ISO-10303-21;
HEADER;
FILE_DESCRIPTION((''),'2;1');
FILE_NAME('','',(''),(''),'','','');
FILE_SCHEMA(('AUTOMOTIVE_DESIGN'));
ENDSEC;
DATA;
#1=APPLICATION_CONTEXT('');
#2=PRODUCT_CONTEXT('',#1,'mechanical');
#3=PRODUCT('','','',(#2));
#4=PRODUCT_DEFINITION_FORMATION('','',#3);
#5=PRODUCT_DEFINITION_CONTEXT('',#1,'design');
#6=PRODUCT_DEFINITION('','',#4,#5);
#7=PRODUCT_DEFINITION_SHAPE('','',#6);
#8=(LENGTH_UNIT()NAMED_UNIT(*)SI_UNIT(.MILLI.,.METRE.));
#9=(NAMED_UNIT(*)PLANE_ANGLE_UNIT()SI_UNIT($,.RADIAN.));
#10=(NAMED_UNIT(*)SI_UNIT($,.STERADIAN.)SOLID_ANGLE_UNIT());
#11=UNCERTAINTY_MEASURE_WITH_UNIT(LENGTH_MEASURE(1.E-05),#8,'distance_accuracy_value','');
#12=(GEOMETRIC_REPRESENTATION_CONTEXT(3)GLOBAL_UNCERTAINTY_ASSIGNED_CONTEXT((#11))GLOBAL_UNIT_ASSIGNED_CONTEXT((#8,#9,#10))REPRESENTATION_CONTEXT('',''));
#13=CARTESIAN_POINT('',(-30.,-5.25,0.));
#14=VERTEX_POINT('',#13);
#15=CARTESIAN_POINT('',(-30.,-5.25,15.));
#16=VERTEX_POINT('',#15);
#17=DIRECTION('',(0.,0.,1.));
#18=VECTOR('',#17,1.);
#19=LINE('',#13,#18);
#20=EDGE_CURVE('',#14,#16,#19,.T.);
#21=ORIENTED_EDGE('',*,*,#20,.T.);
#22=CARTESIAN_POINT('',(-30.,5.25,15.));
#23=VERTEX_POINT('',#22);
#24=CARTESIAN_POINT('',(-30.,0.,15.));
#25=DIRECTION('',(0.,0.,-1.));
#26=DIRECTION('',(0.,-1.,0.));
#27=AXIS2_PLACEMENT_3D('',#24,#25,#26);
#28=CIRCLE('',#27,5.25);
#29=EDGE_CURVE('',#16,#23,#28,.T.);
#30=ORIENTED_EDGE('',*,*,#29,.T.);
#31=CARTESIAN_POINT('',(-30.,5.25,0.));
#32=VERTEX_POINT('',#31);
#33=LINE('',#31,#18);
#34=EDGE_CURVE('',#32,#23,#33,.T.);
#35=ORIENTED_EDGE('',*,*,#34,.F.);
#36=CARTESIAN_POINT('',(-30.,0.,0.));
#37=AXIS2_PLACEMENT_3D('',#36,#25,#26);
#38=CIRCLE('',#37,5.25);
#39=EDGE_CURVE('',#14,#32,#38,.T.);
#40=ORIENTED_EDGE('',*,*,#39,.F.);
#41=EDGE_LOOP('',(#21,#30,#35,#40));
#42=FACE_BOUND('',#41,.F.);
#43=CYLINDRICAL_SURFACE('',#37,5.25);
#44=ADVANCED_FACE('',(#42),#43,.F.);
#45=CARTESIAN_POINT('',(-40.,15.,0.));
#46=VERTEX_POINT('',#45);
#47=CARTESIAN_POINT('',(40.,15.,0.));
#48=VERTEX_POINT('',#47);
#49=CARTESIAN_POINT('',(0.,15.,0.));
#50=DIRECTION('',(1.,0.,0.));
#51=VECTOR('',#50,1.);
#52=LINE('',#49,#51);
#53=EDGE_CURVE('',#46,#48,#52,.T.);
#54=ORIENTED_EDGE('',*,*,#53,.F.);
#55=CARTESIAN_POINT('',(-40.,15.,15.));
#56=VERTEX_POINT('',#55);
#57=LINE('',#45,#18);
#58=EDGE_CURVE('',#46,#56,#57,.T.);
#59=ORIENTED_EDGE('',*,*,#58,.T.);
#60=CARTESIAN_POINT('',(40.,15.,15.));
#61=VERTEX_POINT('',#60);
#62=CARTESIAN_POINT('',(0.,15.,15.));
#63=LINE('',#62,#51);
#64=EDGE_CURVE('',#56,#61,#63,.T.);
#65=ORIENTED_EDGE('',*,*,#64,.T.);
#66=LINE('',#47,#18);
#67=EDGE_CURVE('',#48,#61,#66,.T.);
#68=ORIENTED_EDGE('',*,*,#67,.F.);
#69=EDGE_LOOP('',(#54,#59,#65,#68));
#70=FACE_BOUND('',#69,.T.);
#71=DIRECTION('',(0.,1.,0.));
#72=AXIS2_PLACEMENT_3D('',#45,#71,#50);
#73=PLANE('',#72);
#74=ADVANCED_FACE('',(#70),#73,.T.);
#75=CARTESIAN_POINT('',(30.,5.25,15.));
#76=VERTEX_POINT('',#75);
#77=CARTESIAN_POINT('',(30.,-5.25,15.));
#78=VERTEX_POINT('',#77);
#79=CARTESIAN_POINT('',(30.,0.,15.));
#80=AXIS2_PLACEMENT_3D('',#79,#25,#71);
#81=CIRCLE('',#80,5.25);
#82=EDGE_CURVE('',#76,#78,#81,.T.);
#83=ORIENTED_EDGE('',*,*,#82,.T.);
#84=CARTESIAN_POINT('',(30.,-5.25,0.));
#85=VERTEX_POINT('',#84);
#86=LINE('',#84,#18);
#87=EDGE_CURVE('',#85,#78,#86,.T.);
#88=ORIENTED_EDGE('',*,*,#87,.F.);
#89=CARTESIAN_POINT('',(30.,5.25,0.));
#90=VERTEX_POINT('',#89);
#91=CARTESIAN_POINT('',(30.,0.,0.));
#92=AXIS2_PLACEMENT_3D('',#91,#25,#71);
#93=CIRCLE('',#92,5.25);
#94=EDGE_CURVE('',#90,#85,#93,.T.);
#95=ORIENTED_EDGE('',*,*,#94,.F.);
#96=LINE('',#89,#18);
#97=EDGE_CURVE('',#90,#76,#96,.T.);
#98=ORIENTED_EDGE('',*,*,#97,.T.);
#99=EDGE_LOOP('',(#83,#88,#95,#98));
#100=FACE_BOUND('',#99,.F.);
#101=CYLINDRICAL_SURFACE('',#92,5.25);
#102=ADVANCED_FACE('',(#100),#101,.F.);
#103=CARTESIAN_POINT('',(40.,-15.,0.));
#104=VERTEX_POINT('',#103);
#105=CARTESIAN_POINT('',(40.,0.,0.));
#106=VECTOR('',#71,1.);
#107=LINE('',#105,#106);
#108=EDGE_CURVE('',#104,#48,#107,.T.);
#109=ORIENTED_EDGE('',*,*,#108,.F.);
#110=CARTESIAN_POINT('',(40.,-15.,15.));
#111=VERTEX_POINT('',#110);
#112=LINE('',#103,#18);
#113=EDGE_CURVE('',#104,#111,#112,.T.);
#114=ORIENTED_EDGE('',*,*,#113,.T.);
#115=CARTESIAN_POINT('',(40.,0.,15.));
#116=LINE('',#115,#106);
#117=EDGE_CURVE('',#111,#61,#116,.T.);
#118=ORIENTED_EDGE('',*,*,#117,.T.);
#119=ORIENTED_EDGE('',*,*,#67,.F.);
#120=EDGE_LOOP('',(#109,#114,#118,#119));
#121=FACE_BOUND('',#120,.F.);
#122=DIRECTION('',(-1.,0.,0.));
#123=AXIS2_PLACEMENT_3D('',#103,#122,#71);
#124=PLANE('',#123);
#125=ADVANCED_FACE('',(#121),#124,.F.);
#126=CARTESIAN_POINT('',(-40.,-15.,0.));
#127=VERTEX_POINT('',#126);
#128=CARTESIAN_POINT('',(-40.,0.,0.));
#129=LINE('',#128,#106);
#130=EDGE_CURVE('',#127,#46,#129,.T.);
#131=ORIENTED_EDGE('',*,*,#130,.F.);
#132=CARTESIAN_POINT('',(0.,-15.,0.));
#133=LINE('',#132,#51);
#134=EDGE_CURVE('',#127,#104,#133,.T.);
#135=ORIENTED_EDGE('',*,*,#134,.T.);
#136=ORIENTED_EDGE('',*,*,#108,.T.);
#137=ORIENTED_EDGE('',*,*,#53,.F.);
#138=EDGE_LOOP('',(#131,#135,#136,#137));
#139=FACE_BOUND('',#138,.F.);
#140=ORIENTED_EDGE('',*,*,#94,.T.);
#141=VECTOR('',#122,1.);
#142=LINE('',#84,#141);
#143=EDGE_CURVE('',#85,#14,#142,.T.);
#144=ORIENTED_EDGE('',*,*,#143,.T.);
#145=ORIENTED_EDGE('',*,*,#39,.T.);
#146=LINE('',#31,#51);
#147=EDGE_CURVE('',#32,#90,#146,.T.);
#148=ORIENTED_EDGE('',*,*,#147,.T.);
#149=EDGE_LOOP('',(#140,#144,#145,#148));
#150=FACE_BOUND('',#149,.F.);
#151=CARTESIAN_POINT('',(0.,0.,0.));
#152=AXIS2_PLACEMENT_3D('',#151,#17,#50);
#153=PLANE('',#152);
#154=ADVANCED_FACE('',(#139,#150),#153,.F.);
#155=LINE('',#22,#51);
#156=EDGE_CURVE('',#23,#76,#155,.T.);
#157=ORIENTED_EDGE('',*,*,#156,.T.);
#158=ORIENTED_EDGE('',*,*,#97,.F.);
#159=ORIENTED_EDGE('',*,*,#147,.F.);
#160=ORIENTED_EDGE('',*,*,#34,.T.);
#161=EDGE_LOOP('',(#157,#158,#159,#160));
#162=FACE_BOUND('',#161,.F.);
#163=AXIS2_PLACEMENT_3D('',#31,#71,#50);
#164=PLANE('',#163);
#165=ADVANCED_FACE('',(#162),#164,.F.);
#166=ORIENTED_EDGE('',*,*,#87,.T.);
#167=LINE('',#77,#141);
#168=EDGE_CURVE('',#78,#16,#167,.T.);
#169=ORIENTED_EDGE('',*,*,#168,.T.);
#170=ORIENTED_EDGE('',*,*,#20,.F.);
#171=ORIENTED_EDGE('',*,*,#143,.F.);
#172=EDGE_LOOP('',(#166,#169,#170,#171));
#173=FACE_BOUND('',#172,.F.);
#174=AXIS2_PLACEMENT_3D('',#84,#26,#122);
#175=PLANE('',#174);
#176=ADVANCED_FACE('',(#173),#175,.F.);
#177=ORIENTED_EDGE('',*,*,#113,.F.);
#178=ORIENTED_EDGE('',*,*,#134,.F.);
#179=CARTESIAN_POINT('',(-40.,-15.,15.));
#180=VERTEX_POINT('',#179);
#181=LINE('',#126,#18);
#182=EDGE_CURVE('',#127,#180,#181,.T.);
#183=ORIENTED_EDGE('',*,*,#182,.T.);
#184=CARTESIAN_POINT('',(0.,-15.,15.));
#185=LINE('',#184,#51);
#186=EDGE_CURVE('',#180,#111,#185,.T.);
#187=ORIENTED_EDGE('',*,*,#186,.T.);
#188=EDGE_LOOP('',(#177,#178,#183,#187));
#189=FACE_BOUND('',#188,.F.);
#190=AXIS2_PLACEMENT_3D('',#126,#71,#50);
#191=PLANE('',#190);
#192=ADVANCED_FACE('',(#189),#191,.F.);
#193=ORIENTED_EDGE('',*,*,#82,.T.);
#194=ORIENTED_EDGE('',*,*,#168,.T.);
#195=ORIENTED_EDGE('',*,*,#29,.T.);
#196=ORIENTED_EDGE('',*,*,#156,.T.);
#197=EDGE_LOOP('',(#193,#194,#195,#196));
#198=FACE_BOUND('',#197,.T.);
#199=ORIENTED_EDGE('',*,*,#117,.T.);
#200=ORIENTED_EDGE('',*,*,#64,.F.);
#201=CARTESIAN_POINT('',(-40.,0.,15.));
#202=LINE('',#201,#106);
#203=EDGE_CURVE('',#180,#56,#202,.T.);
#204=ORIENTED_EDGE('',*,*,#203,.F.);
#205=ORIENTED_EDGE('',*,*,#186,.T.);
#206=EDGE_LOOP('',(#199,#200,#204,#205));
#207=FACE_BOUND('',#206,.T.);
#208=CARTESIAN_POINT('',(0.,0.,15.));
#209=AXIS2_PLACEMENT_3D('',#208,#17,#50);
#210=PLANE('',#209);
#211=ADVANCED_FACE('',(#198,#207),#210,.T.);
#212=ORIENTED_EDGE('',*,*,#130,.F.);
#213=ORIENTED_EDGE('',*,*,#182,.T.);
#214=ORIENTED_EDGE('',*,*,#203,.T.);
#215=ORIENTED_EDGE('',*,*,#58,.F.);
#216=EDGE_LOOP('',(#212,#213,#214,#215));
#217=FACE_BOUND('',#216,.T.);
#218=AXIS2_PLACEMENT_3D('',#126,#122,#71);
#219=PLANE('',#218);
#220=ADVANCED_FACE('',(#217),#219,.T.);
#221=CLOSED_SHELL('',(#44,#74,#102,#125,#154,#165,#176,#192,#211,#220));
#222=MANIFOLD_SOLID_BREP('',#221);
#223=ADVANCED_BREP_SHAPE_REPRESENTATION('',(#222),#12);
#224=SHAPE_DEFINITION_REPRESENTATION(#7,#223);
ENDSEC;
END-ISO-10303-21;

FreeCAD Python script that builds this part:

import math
import FreeCAD as App
import Part
import Sketcher


def add_polygon(sketch, points):
    """Adds a closed chain of lines whose ends are joined by coincident constraints."""
    first, n = sketch.GeometryCount, len(points)
    for a, b in zip(points, points[1:] + points[:1]):
        sketch.addGeometry(Part.LineSegment(App.Vector(*a, 0), App.Vector(*b, 0)), False)
    for i in range(n):
        sketch.addConstraint(Sketcher.Constraint("Coincident", first + i, 2, first + (i + 1) % n, 1))

doc = App.newDocument("Part")
params = doc.addObject("Spreadsheet::Sheet", "Params")
for row, (alias, value) in enumerate([
    ("sketch1_width", "80 mm"),
    ("sketch1_width2", "60 mm"),
    ("sketch1_height", "30 mm"),
    ("sketch1_radius", "5.25 mm"),
    ("pad1_length", "15 mm"),
], start=1):
    params.set(f"A{row}", alias)
    params.set(f"B{row}", "=" + value)
    params.setAlias(f"B{row}", alias)

body = doc.addObject("PartDesign::Body", "Body")

# Sketch on XY plane
sketch1 = body.newObject("Sketcher::SketchObject", "Sketch")
sketch1.AttachmentSupport = (doc.getObject("XY_Plane"), [""])
sketch1.MapMode = "FlatFace"
add_polygon(sketch1, [(-40, 15), (-40, -15), (40, -15), (40, 15)])  # lines 0-3
sketch1.addGeometry(Part.ArcOfCircle(Part.Circle(App.Vector(30, 0, 0), App.Vector(0, 0, 1), 5), math.radians(-90), math.radians(90)), False)  # 4
sketch1.addGeometry(Part.LineSegment(App.Vector(30, -5, 0), App.Vector(-30, -5, 0)), False)  # 5
sketch1.addGeometry(Part.ArcOfCircle(Part.Circle(App.Vector(-30, 0, 0), App.Vector(0, 0, 1), 5), math.radians(90), math.radians(270)), False)  # 6
sketch1.addGeometry(Part.LineSegment(App.Vector(-30, 5, 0), App.Vector(30, 5, 0)), False)  # 7
sketch1.addConstraint([
    Sketcher.Constraint("Tangent", 4, 1, 5, 1),
    Sketcher.Constraint("Tangent", 5, 2, 6, 2),
    Sketcher.Constraint("Tangent", 6, 1, 7, 1),
    Sketcher.Constraint("Tangent", 7, 2, 4, 2),
    Sketcher.Constraint("Vertical", 0),
    Sketcher.Constraint("Horizontal", 1),
    Sketcher.Constraint("Vertical", 2),
    Sketcher.Constraint("Horizontal", 3),
    Sketcher.Constraint("Horizontal", 5),
    Sketcher.Constraint("Horizontal", 7),
    Sketcher.Constraint("Symmetric", 4, 3, 6, 3, -1, 1),
    Sketcher.Constraint("Symmetric", 0, 2, 2, 2, -1, 1),
    Sketcher.Constraint("DistanceX", 1, 1, 1, 2, 80.0),
    Sketcher.Constraint("DistanceX", 5, 2, 5, 1, 60.0),
    Sketcher.Constraint("DistanceY", 0, 2, 0, 1, 30.0),
    Sketcher.Constraint("Radius", 4, 5.25),
])
sketch1.setExpression("Constraints[16]", "Params.sketch1_width")
sketch1.setExpression("Constraints[17]", "Params.sketch1_width2")
sketch1.setExpression("Constraints[18]", "Params.sketch1_height")
sketch1.setExpression("Constraints[19]", "Params.sketch1_radius")
pad1 = body.newObject("PartDesign::Pad", "Pad")
pad1.Profile = sketch1
pad1.setExpression("Length", "Params.pad1_length")

doc.recompute()
